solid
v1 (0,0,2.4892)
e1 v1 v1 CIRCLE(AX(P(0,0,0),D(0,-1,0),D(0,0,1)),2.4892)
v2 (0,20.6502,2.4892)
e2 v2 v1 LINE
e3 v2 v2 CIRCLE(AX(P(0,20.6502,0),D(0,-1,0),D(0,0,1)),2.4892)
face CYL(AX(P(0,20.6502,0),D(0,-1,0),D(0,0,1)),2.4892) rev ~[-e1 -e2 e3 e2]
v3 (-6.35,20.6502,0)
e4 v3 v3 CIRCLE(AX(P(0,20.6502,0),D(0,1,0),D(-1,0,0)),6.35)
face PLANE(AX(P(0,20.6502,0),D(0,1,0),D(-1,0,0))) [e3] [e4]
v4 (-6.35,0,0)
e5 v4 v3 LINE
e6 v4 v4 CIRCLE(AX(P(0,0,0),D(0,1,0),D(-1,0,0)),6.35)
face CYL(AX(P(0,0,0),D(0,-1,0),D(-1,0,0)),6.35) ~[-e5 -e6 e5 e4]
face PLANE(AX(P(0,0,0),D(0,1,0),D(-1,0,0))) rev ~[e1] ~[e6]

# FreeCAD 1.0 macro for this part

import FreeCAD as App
import Part
import Sketcher

V = App.Vector
Q = App.Units.Quantity

doc = App.newDocument("Part")
body = doc.addObject("PartDesign::Body", "Body")

# Sketch on XZ plane
sketch1 = body.newObject("Sketcher::SketchObject", "Sketch")
sketch1.AttachmentSupport = (doc.getObject("XZ_Plane"), [""])
sketch1.MapMode = "FlatFace"
sketch1.addGeometry(Part.Circle(V(0, 0, 0), V(0, 0, 1), 6), False)
sketch1.addConstraint(Sketcher.Constraint("Coincident", 0, 3, -1, 1))
sketch1.addConstraint(Sketcher.Constraint("Diameter", 0, Q("0.5 in")))
pad1 = body.newObject("PartDesign::Pad", "Pad")
pad1.Profile = sketch1
pad1.Length = Q("0.813 in")
pad1.Reversed = True

# Sketch on XZ plane
sketch2 = body.newObject("Sketcher::SketchObject", "Sketch001")
sketch2.AttachmentSupport = (doc.getObject("XZ_Plane"), [""])
sketch2.MapMode = "FlatFace"
sketch2.AttachmentOffset = App.Placement(V(0, 0, -0.813 * 25.4), App.Rotation())
sketch2.addGeometry(Part.Circle(V(0, 0, 0), V(0, 0, 1), 2.5), False)
sketch2.addConstraint(Sketcher.Constraint("Coincident", 0, 3, -1, 1))
sketch2.addConstraint(Sketcher.Constraint("Diameter", 0, Q("0.196 in")))
doc.recompute()
hole = body.newObject("PartDesign::Hole", "Hole")
hole.Profile = sketch2
hole.ThreadType = "None"
hole.Diameter = Q("0.196 in")
hole.DepthType = "ThroughAll"
hole.Reversed = True

doc.recompute()
